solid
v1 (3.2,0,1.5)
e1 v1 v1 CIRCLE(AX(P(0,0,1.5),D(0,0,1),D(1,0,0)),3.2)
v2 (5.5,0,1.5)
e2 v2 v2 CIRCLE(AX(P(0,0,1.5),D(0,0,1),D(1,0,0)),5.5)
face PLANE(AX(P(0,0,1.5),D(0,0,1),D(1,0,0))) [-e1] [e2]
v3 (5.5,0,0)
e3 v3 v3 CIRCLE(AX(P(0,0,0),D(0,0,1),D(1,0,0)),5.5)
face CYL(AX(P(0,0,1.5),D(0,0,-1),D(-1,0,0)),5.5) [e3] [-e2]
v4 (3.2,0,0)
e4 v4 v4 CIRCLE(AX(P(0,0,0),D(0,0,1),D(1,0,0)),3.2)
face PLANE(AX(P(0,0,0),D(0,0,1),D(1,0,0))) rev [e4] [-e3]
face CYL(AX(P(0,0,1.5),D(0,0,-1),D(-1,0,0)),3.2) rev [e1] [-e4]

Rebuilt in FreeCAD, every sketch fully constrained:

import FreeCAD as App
import Part
import Sketcher

V = App.Vector
Q = App.Units.Quantity

doc = App.newDocument("Part")
params = doc.addObject("Spreadsheet::Sheet", "Params")
for row, (alias, value) in enumerate([
    ("sketch1_diameter", "11 mm"),
    ("sketch1_diameter2", "6.4 mm"),
    ("pad1_length", "1.5 mm"),
], start=1):
    params.set(f"A{row}", alias)
    params.set(f"B{row}", "=" + value)
    params.setAlias(f"B{row}", alias)

body = doc.addObject("PartDesign::Body", "Body")

sketch1 = body.newObject("Sketcher::SketchObject", "Sketch")
sketch1.AttachmentSupport = (doc.getObject("XY_Plane"), [""])
sketch1.MapMode = "FlatFace"
sketch1.addGeometry([
    Part.Circle(V(0, 0, 0), V(0, 0, 1), 5.5),
    Part.Circle(V(0, 0, 0), V(0, 0, 1), 3.2),
], False)
sketch1.addConstraint([
    Sketcher.Constraint("Coincident", 0, 3, -1, 1),
    Sketcher.Constraint("Coincident", 1, 3, -1, 1),
    Sketcher.Constraint("Diameter", 0, Q("11 mm")),
    Sketcher.Constraint("Diameter", 1, Q("6.4 mm")),
])
sketch1.setExpression("Constraints[2]", "Params.sketch1_diameter")
sketch1.setExpression("Constraints[3]", "Params.sketch1_diameter2")
pad1 = body.newObject("PartDesign::Pad", "Pad")
pad1.Profile = sketch1
pad1.setExpression("Length", "Params.pad1_length")

doc.recompute()
